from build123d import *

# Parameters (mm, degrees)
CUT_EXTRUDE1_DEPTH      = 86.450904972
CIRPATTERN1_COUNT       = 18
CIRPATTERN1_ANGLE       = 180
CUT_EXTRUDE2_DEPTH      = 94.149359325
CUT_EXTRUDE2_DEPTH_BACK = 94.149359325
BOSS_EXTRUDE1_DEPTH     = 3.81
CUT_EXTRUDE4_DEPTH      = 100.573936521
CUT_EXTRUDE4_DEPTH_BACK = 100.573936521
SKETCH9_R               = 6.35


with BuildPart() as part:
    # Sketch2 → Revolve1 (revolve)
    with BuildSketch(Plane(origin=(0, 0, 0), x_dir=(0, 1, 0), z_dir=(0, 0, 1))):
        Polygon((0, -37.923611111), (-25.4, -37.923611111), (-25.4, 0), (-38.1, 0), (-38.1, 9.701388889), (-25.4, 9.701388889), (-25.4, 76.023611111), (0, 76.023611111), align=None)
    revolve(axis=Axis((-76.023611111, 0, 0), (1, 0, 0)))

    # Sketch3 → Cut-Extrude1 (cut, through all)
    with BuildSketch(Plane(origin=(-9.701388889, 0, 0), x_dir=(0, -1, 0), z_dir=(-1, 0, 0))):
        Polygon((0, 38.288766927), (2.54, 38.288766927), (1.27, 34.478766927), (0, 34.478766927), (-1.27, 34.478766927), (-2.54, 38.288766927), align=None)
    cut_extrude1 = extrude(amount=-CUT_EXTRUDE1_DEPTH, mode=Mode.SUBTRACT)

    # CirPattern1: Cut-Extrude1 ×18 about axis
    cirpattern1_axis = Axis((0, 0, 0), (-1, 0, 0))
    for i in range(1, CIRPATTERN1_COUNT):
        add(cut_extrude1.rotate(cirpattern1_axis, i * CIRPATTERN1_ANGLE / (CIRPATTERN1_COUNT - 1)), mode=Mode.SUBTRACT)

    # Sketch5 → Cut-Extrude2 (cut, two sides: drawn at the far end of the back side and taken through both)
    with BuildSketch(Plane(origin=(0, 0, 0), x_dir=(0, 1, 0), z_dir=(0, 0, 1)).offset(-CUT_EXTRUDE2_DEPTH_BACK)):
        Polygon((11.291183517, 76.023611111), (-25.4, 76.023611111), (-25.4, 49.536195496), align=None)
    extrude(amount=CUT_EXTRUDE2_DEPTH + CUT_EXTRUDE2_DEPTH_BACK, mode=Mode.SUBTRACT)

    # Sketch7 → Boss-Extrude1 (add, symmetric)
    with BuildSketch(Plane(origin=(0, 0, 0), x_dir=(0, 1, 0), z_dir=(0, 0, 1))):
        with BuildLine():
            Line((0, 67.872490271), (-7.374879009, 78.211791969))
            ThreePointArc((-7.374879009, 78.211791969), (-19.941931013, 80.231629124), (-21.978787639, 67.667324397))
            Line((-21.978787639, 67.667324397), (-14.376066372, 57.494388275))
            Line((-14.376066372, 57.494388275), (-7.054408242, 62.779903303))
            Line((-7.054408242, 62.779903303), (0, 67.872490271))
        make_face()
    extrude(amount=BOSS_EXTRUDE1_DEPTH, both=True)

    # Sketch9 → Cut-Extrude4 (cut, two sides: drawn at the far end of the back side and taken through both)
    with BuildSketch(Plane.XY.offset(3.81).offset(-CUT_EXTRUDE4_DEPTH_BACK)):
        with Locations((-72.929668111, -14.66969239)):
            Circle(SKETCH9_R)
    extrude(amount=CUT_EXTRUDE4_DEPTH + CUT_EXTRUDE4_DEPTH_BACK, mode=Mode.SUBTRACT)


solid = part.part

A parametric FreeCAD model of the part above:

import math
import FreeCAD as App
import Part
import Sketcher
from FreeCAD import Vector
Q = App.Units.Quantity


def add_polygon(sketch, points):
    """Adds a closed chain of lines whose ends are joined by coincident constraints."""
    first, n = sketch.GeometryCount, len(points)
    for a, b in zip(points, points[1:] + points[:1]):
        sketch.addGeometry(Part.LineSegment(App.Vector(*a, 0), App.Vector(*b, 0)), False)
    for i in range(n):
        sketch.addConstraint(Sketcher.Constraint("Coincident", first + i, 2, first + (i + 1) % n, 1))

doc = App.newDocument("Part")
body = doc.addObject("PartDesign::Body", "Body")

sketch1 = doc.addObject("Sketcher::SketchObject", "Sketch")
body.addObject(sketch1)
sketch1.AttachmentSupport = (doc.XY_Plane, [""])
sketch1.MapMode = "FlatFace"
add_polygon(sketch1, [(38, -25), (38, 0), (-76, 0), (-76, -25), (-10, -25), (-10, -38), (0, -38), (0, -25)])
sketch1.addConstraint([
    Sketcher.Constraint("Vertical", 0),
    Sketcher.Constraint("Horizontal", 1),
    Sketcher.Constraint("Vertical", 2),
    Sketcher.Constraint("Horizontal", 3),
    Sketcher.Constraint("Vertical", 4),
    Sketcher.Constraint("Horizontal", 5),
    Sketcher.Constraint("Vertical", 6),
    Sketcher.Constraint("Horizontal", 7),
    Sketcher.Constraint("PointOnObject", 0, 2, -1),
    Sketcher.Constraint("PointOnObject", 5, 2, -2),
    Sketcher.Constraint("Horizontal", 3, 2, 6, 2),
    Sketcher.Constraint("DistanceY", 0, 1, 0, 2, Q("1 in")),
    Sketcher.Constraint("DistanceY", 4, 2, 4, 1, Q("0.5 in")),
    Sketcher.Constraint("DistanceX", 3, 2, 0, 2, Q("1.875 in")),
    Sketcher.Constraint("DistanceX", 5, 1, 5, 2, 9.701389),
    Sketcher.Constraint("DistanceX", 1, 2, 1, 1, 113.947222),
])
revolution = doc.addObject("PartDesign::Revolution", "Revolution")
body.addObject(revolution)
revolution.Profile = sketch1
revolution.ReferenceAxis = (sketch1, ["H_Axis"])
revolution.Angle = 360

sketch2 = doc.addObject("Sketcher::SketchObject", "Sketch001")
body.addObject(sketch2)
sketch2.AttachmentSupport = (doc.YZ_Plane, [""])
sketch2.MapMode = "FlatFace"
sketch2.AttachmentOffset = App.Placement(Vector(0, 0, -9.701389), App.Rotation())
add_polygon(sketch2, [(-2.5, 38.3), (2.5, 38.3), (1.3, 34.5), (-1.3, 34.5)])
sketch2.addConstraint([
    Sketcher.Constraint("Horizontal", 0),
    Sketcher.Constraint("Horizontal", 2),
    Sketcher.Constraint("Equal", 1, 3),
    Sketcher.Constraint("DistanceX", 0, 1, 0, 2, Q("0.2 in")),
    Sketcher.Constraint("DistanceX", 2, 2, 2, 1, Q("0.1 in")),
    Sketcher.Constraint("DistanceX", -1, 1, 0, 2, Q("0.1 in")),
    Sketcher.Constraint("DistanceY", 1, 2, 0, 2, Q("0.15 in")),
    Sketcher.Constraint("DistanceY", -1, 1, 0, 2, 38.288767),
])
pocket1 = doc.addObject("PartDesign::Pocket", "Pocket")
body.addObject(pocket1)
pocket1.Profile = sketch2
pocket1.Type = "ThroughAll"
pocket1.Reversed = True
doc.recompute()

polarpattern = doc.addObject("PartDesign::PolarPattern", "PolarPattern")
body.addObject(polarpattern)
polarpattern.Originals = [pocket1]
polarpattern.Axis = (doc.X_Axis, [""])
polarpattern.Angle = 180
polarpattern.Occurrences = 18
polarpattern.Reversed = True
body.Tip = polarpattern

sketch3 = doc.addObject("Sketcher::SketchObject", "Sketch002")
body.addObject(sketch3)
sketch3.AttachmentSupport = (doc.XY_Plane, [""])
sketch3.MapMode = "FlatFace"
add_polygon(sketch3, [(-76, 11), (-76, -25), (-50, -25)])
sketch3.addConstraint([
    Sketcher.Constraint("Vertical", 0),
    Sketcher.Constraint("Horizontal", 1),
    Sketcher.Constraint("DistanceY", 0, 2, -1, 1, Q("1 in")),
    Sketcher.Constraint("DistanceX", 1, 1, 1, 2, 26.487416),
    Sketcher.Constraint("DistanceY", 0, 2, 0, 1, 36.691184),
    Sketcher.Constraint("DistanceX", 0, 2, -1, 1, 76.023611),
])
pocket2 = doc.addObject("PartDesign::Pocket", "Pocket001")
body.addObject(pocket2)
pocket2.Profile = sketch3
pocket2.Type = "ThroughAll"
pocket2.Midplane = True

sketch4 = doc.addObject("Sketcher::SketchObject", "Sketch003")
body.addObject(sketch4)
sketch4.AttachmentSupport = (doc.XY_Plane, [""])
sketch4.MapMode = "FlatFace"
sketch4.addGeometry([
    Part.LineSegment(Vector(-68, 0, 0), Vector(-78, -7, 0)),
    Part.ArcOfCircle(Part.Circle(Vector(-73, -15, 0), Vector(0, 0, 1), 9), math.radians(126), math.radians(306)),
    Part.LineSegment(Vector(-68, -22, 0), Vector(-57, -14, 0)),
    Part.LineSegment(Vector(-57, -14, 0), Vector(-63, -7, 0)),
    Part.LineSegment(Vector(-63, -7, 0), Vector(-68, 0, 0)),
], False)
sketch4.addConstraint([
    Sketcher.Constraint("Coincident", 0, 2, 1, 1),
    Sketcher.Constraint("Coincident", 1, 2, 2, 1),
    Sketcher.Constraint("Coincident", 2, 2, 3, 1),
    Sketcher.Constraint("Coincident", 3, 2, 4, 1),
    Sketcher.Constraint("Coincident", 4, 2, 0, 1),
    Sketcher.Constraint("PointOnObject", 4, 2, -1),
    Sketcher.Constraint("Parallel", 3, 4),
    Sketcher.Constraint("Equal", 0, 2),
    Sketcher.Constraint("Distance", 0, Q("0.5 in")),
    Sketcher.Constraint("Radius", 1, 9.006394),
    Sketcher.Constraint("DistanceX", 0, 2, 4, 2, 10.339302),
    Sketcher.Constraint("DistanceX", 4, 2, 2, 2, 10.378102),
    Sketcher.Constraint("DistanceX", 1, 3, -1, 1, 72.929668),
    Sketcher.Constraint("DistanceX", 0, 2, -1, 1, 78.211792),
    Sketcher.Constraint("DistanceY", 3, 2, -1, 1, 7.054408),
    Sketcher.Constraint("DistanceY", 1, 2, 0, 2, 14.603909),
])
pad1 = doc.addObject("PartDesign::Pad", "Pad")
body.addObject(pad1)
pad1.Profile = sketch4
pad1.Length = Q("0.3 in")
pad1.Midplane = True

sketch5 = doc.addObject("Sketcher::SketchObject", "Sketch004")
body.addObject(sketch5)
sketch5.AttachmentSupport = (doc.XY_Plane, [""])
sketch5.MapMode = "FlatFace"
sketch5.AttachmentOffset = App.Placement(Vector(0, 0, 0.15 * 25.4), App.Rotation())
sketch5.addGeometry(Part.Circle(Vector(-73, -15, 0), Vector(0, 0, 1), 6), False)
sketch5.addConstraint([
    Sketcher.Constraint("Diameter", 0, Q("0.5 in")),
    Sketcher.Constraint("DistanceX", 0, 3, -1, 1, 72.929668),
    Sketcher.Constraint("DistanceY", 0, 3, -1, 1, 14.669692),
])
pocket3 = doc.addObject("PartDesign::Pocket", "Pocket002")
body.addObject(pocket3)
pocket3.Profile = sketch5
pocket3.Type = "ThroughAll"
pocket3.Midplane = True

doc.recompute()
